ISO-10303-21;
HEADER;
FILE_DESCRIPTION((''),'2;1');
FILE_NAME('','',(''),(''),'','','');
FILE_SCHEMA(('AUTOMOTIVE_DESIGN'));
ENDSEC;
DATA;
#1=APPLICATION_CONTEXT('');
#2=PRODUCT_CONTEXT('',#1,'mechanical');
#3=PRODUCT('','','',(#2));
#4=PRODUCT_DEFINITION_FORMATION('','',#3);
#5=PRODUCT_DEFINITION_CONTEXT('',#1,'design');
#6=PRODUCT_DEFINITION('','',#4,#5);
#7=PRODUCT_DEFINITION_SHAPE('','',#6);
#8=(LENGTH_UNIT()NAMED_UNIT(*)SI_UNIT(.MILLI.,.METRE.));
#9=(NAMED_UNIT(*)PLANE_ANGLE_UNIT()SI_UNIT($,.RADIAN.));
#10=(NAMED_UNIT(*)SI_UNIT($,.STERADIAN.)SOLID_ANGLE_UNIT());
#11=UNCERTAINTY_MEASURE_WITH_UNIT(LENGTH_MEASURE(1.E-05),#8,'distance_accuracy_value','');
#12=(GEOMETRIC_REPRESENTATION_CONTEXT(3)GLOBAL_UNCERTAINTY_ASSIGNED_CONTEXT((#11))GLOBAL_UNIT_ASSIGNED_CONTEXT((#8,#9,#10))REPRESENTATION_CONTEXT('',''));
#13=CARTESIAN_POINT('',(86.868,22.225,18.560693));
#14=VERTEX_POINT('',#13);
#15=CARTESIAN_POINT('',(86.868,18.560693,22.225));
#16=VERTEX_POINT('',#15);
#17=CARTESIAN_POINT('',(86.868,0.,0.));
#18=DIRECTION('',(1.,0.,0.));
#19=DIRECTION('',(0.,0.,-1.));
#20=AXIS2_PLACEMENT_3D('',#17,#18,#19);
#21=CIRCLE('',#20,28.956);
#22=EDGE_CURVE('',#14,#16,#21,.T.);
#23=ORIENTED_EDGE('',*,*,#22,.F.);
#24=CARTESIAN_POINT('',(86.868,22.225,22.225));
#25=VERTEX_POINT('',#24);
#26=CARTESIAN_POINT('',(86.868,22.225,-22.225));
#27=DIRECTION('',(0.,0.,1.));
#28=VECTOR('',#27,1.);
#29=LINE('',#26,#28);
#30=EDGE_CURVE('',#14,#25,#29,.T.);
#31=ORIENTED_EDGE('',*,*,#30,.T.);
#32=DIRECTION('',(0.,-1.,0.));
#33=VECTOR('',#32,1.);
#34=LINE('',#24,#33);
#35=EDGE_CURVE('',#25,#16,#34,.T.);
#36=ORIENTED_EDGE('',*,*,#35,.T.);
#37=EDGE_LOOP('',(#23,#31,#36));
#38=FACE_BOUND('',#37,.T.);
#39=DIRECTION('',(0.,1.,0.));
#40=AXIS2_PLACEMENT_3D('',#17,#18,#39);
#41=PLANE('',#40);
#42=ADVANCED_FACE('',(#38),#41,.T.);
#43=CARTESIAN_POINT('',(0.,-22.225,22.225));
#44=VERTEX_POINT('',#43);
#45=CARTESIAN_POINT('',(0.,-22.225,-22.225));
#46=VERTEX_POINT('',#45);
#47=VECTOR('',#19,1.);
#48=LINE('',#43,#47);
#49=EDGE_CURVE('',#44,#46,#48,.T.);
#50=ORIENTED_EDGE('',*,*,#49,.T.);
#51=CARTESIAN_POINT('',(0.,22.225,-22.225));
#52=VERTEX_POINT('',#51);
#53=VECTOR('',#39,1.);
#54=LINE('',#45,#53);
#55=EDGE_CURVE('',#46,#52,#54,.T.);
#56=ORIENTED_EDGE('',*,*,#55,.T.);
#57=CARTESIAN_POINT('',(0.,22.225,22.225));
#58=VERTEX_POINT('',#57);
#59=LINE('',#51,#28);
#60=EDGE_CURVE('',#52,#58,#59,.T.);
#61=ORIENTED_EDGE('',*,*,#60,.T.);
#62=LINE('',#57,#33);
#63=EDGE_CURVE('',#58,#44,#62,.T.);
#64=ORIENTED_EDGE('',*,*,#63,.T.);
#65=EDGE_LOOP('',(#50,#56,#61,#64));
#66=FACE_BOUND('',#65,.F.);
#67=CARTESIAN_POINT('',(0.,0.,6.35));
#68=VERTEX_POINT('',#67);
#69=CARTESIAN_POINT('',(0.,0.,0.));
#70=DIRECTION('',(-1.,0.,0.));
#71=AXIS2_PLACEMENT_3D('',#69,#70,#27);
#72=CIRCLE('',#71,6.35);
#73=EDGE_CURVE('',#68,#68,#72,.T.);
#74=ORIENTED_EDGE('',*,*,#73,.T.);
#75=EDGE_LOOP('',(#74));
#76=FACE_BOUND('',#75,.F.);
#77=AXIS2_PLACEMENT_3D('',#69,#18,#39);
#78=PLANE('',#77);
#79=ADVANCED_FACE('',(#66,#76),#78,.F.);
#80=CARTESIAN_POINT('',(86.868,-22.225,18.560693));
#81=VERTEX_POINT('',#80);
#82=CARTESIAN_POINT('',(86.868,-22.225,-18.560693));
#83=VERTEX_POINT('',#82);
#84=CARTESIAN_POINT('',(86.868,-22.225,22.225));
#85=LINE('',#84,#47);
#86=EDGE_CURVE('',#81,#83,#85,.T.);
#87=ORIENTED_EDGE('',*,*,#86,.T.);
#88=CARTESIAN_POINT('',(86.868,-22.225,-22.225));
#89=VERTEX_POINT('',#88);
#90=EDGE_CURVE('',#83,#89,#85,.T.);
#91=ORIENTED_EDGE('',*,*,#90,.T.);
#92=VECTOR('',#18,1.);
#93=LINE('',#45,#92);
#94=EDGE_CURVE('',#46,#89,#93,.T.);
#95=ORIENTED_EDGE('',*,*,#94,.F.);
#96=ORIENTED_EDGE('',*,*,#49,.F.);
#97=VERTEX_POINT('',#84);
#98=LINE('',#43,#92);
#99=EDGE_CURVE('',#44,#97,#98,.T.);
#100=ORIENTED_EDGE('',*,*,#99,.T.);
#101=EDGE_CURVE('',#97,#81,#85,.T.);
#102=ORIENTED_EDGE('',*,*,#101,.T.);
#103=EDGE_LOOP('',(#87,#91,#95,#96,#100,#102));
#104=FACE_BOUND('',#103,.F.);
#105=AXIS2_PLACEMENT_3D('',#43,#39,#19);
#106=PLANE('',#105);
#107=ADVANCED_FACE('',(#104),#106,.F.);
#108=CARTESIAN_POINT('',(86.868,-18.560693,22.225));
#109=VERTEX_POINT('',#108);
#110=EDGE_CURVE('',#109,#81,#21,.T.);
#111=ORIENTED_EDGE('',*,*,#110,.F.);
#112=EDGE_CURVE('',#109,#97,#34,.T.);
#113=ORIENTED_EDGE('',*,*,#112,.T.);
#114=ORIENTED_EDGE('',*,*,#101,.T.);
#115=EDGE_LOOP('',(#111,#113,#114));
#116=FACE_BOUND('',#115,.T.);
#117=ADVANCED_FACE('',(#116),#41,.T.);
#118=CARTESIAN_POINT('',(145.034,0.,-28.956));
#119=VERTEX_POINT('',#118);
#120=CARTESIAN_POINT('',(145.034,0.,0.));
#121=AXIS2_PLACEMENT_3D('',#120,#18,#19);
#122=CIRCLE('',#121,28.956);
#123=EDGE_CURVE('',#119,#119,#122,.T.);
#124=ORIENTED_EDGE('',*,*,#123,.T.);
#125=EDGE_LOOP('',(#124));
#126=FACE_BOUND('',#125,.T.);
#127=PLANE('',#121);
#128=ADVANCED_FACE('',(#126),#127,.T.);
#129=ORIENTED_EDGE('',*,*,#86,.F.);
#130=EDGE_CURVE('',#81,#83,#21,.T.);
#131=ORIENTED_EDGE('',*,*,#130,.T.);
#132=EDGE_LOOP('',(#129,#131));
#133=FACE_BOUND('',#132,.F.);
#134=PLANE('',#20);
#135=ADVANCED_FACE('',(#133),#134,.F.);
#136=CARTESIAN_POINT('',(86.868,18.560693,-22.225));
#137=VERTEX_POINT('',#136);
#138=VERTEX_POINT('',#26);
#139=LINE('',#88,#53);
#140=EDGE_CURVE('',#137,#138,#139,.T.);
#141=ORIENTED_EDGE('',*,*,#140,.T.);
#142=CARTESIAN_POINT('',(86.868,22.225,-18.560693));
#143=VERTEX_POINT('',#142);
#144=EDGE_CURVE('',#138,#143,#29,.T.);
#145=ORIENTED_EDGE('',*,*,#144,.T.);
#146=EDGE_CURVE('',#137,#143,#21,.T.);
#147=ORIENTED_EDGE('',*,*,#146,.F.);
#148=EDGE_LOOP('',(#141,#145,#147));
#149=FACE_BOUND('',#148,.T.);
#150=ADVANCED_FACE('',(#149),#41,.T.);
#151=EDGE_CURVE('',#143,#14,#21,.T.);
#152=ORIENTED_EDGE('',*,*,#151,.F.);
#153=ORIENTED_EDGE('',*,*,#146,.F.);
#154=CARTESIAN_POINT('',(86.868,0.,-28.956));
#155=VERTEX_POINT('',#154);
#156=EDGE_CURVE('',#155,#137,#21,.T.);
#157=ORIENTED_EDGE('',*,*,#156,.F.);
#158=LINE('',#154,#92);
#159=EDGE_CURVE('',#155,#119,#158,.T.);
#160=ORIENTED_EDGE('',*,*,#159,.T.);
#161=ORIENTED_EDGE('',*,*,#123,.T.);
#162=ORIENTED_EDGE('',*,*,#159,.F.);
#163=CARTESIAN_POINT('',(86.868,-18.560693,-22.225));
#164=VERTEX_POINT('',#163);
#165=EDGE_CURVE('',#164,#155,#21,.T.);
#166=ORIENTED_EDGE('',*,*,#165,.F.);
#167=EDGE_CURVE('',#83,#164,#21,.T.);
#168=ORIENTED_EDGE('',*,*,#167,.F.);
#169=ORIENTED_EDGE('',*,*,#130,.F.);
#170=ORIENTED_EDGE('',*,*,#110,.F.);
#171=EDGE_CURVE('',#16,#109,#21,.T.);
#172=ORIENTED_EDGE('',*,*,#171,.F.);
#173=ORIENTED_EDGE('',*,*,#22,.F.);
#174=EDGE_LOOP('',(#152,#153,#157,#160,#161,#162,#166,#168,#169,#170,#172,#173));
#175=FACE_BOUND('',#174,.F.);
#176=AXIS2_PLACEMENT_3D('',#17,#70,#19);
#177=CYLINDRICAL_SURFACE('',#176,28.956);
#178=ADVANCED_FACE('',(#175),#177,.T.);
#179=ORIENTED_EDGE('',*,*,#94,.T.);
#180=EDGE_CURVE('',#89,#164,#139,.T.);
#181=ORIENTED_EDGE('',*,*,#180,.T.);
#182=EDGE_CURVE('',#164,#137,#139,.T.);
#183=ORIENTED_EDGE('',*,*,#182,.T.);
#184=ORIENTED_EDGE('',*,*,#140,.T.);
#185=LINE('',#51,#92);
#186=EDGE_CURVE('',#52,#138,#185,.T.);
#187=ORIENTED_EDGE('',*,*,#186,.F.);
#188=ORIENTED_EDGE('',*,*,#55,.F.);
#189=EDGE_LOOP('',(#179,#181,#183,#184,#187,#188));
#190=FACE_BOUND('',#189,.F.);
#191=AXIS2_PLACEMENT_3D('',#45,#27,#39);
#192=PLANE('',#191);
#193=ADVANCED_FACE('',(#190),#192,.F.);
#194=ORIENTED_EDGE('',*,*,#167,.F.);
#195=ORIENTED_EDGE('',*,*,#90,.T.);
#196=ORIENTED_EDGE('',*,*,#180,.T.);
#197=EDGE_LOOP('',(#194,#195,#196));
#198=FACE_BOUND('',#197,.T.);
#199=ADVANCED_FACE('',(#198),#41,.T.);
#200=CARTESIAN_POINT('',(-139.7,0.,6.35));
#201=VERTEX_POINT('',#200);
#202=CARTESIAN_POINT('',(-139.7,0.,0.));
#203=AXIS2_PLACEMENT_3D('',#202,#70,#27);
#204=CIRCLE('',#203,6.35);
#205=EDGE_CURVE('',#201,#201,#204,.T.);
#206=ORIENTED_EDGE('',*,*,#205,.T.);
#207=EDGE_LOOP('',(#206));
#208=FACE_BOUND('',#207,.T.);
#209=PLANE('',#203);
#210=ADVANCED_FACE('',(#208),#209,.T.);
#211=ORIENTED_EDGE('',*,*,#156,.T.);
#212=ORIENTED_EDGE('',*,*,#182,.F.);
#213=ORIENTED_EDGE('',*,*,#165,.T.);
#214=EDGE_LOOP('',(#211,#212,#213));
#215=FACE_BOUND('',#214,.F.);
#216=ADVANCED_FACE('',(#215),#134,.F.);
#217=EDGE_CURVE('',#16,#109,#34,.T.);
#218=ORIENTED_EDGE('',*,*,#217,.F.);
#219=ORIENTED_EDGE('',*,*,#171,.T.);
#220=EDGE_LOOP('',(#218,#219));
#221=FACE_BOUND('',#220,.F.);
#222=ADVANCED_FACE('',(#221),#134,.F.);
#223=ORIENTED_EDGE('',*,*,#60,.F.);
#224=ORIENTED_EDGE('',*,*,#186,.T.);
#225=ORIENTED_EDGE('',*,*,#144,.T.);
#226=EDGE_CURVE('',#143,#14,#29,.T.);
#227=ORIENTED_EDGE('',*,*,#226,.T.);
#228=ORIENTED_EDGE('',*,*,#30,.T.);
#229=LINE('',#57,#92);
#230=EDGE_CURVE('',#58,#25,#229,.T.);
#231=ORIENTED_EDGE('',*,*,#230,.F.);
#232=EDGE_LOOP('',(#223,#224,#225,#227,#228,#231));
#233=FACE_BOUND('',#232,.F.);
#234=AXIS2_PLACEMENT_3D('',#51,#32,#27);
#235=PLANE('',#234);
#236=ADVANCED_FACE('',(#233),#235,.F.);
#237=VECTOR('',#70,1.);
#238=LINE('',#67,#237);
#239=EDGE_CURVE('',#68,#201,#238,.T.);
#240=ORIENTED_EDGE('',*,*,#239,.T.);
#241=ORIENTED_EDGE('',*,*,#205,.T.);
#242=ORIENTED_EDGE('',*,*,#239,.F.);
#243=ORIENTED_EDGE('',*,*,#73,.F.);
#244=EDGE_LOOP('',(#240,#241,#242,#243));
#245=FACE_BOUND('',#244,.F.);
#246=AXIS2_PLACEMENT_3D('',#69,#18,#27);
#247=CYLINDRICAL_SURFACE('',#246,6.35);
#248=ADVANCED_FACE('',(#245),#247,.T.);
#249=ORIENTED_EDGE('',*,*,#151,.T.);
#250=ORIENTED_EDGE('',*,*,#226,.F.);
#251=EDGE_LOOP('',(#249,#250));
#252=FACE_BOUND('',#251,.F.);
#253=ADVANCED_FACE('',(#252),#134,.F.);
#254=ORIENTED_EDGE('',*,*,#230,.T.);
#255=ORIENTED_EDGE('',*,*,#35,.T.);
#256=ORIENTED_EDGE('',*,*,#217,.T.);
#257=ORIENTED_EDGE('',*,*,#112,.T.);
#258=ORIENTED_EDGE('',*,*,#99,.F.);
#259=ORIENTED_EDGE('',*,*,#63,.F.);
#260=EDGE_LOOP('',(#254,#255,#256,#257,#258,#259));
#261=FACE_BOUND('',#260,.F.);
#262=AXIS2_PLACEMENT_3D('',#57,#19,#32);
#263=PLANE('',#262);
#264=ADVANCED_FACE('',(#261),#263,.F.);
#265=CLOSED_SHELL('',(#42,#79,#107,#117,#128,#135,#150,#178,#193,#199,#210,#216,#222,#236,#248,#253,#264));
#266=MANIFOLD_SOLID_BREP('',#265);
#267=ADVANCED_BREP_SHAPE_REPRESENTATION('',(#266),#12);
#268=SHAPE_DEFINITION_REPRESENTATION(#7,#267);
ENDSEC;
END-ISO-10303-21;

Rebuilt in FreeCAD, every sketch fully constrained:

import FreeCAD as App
import Part
import Sketcher

V = App.Vector
Q = App.Units.Quantity

doc = App.newDocument("Part")
body = doc.addObject("PartDesign::Body", "Body")

sketch1 = body.newObject("Sketcher::SketchObject", "Sketch")
sketch1.AttachmentSupport = (doc.getObject("YZ_Plane"), [""])
sketch1.MapMode = "FlatFace"
sketch1.addGeometry([
    Part.LineSegment(V(22, -22, 0), V(22, 22, 0)),
    Part.LineSegment(V(22, 22, 0), V(-22, 22, 0)),
    Part.LineSegment(V(-22, 22, 0), V(-22, -22, 0)),
    Part.LineSegment(V(-22, -22, 0), V(22, -22, 0)),
], False)
sketch1.addConstraint([
    Sketcher.Constraint("Coincident", 0, 2, 1, 1),
    Sketcher.Constraint("Coincident", 1, 2, 2, 1),
    Sketcher.Constraint("Coincident", 2, 2, 3, 1),
    Sketcher.Constraint("Coincident", 3, 2, 0, 1),
    Sketcher.Constraint("Vertical", 0),
    Sketcher.Constraint("Horizontal", 1),
    Sketcher.Constraint("Vertical", 2),
    Sketcher.Constraint("Horizontal", 3),
    Sketcher.Constraint("Symmetric", 0, 2, 2, 2, -1, 1),
    Sketcher.Constraint("Equal", 3, 0),
    Sketcher.Constraint("DistanceX", 1, 2, 1, 1, Q("1.75 in")),
])
pad1 = body.newObject("PartDesign::Pad", "Pad")
pad1.Profile = sketch1
pad1.Length = Q("3.42 in")

sketch2 = body.newObject("Sketcher::SketchObject", "Sketch001")
sketch2.AttachmentSupport = (doc.getObject("YZ_Plane"), [""])
sketch2.MapMode = "FlatFace"
sketch2.AttachmentOffset = App.Placement(V(0, 0, 3.42 * 25.4), App.Rotation())
sketch2.addGeometry(Part.Circle(V(0, 0, 0), V(0, 0, 1), 29), False)
sketch2.addConstraint([
    Sketcher.Constraint("Coincident", 0, 3, -1, 1),
    Sketcher.Constraint("Diameter", 0, Q("2.28 in")),
])
pad2 = body.newObject("PartDesign::Pad", "Pad001")
pad2.Profile = sketch2
pad2.Length = Q("2.29 in")

sketch3 = body.newObject("Sketcher::SketchObject", "Sketch002")
sketch3.AttachmentSupport = (doc.getObject("YZ_Plane"), [""])
sketch3.MapMode = "FlatFace"
sketch3.addGeometry(Part.Circle(V(0, 0, 0), V(0, 0, 1), 6), False)
sketch3.addConstraint([
    Sketcher.Constraint("Coincident", 0, 3, -1, 1),
    Sketcher.Constraint("Diameter", 0, Q("0.5 in")),
])
pad3 = body.newObject("PartDesign::Pad", "Pad002")
pad3.Profile = sketch3
pad3.Length = Q("5.5 in")
pad3.Reversed = True

doc.recompute()
